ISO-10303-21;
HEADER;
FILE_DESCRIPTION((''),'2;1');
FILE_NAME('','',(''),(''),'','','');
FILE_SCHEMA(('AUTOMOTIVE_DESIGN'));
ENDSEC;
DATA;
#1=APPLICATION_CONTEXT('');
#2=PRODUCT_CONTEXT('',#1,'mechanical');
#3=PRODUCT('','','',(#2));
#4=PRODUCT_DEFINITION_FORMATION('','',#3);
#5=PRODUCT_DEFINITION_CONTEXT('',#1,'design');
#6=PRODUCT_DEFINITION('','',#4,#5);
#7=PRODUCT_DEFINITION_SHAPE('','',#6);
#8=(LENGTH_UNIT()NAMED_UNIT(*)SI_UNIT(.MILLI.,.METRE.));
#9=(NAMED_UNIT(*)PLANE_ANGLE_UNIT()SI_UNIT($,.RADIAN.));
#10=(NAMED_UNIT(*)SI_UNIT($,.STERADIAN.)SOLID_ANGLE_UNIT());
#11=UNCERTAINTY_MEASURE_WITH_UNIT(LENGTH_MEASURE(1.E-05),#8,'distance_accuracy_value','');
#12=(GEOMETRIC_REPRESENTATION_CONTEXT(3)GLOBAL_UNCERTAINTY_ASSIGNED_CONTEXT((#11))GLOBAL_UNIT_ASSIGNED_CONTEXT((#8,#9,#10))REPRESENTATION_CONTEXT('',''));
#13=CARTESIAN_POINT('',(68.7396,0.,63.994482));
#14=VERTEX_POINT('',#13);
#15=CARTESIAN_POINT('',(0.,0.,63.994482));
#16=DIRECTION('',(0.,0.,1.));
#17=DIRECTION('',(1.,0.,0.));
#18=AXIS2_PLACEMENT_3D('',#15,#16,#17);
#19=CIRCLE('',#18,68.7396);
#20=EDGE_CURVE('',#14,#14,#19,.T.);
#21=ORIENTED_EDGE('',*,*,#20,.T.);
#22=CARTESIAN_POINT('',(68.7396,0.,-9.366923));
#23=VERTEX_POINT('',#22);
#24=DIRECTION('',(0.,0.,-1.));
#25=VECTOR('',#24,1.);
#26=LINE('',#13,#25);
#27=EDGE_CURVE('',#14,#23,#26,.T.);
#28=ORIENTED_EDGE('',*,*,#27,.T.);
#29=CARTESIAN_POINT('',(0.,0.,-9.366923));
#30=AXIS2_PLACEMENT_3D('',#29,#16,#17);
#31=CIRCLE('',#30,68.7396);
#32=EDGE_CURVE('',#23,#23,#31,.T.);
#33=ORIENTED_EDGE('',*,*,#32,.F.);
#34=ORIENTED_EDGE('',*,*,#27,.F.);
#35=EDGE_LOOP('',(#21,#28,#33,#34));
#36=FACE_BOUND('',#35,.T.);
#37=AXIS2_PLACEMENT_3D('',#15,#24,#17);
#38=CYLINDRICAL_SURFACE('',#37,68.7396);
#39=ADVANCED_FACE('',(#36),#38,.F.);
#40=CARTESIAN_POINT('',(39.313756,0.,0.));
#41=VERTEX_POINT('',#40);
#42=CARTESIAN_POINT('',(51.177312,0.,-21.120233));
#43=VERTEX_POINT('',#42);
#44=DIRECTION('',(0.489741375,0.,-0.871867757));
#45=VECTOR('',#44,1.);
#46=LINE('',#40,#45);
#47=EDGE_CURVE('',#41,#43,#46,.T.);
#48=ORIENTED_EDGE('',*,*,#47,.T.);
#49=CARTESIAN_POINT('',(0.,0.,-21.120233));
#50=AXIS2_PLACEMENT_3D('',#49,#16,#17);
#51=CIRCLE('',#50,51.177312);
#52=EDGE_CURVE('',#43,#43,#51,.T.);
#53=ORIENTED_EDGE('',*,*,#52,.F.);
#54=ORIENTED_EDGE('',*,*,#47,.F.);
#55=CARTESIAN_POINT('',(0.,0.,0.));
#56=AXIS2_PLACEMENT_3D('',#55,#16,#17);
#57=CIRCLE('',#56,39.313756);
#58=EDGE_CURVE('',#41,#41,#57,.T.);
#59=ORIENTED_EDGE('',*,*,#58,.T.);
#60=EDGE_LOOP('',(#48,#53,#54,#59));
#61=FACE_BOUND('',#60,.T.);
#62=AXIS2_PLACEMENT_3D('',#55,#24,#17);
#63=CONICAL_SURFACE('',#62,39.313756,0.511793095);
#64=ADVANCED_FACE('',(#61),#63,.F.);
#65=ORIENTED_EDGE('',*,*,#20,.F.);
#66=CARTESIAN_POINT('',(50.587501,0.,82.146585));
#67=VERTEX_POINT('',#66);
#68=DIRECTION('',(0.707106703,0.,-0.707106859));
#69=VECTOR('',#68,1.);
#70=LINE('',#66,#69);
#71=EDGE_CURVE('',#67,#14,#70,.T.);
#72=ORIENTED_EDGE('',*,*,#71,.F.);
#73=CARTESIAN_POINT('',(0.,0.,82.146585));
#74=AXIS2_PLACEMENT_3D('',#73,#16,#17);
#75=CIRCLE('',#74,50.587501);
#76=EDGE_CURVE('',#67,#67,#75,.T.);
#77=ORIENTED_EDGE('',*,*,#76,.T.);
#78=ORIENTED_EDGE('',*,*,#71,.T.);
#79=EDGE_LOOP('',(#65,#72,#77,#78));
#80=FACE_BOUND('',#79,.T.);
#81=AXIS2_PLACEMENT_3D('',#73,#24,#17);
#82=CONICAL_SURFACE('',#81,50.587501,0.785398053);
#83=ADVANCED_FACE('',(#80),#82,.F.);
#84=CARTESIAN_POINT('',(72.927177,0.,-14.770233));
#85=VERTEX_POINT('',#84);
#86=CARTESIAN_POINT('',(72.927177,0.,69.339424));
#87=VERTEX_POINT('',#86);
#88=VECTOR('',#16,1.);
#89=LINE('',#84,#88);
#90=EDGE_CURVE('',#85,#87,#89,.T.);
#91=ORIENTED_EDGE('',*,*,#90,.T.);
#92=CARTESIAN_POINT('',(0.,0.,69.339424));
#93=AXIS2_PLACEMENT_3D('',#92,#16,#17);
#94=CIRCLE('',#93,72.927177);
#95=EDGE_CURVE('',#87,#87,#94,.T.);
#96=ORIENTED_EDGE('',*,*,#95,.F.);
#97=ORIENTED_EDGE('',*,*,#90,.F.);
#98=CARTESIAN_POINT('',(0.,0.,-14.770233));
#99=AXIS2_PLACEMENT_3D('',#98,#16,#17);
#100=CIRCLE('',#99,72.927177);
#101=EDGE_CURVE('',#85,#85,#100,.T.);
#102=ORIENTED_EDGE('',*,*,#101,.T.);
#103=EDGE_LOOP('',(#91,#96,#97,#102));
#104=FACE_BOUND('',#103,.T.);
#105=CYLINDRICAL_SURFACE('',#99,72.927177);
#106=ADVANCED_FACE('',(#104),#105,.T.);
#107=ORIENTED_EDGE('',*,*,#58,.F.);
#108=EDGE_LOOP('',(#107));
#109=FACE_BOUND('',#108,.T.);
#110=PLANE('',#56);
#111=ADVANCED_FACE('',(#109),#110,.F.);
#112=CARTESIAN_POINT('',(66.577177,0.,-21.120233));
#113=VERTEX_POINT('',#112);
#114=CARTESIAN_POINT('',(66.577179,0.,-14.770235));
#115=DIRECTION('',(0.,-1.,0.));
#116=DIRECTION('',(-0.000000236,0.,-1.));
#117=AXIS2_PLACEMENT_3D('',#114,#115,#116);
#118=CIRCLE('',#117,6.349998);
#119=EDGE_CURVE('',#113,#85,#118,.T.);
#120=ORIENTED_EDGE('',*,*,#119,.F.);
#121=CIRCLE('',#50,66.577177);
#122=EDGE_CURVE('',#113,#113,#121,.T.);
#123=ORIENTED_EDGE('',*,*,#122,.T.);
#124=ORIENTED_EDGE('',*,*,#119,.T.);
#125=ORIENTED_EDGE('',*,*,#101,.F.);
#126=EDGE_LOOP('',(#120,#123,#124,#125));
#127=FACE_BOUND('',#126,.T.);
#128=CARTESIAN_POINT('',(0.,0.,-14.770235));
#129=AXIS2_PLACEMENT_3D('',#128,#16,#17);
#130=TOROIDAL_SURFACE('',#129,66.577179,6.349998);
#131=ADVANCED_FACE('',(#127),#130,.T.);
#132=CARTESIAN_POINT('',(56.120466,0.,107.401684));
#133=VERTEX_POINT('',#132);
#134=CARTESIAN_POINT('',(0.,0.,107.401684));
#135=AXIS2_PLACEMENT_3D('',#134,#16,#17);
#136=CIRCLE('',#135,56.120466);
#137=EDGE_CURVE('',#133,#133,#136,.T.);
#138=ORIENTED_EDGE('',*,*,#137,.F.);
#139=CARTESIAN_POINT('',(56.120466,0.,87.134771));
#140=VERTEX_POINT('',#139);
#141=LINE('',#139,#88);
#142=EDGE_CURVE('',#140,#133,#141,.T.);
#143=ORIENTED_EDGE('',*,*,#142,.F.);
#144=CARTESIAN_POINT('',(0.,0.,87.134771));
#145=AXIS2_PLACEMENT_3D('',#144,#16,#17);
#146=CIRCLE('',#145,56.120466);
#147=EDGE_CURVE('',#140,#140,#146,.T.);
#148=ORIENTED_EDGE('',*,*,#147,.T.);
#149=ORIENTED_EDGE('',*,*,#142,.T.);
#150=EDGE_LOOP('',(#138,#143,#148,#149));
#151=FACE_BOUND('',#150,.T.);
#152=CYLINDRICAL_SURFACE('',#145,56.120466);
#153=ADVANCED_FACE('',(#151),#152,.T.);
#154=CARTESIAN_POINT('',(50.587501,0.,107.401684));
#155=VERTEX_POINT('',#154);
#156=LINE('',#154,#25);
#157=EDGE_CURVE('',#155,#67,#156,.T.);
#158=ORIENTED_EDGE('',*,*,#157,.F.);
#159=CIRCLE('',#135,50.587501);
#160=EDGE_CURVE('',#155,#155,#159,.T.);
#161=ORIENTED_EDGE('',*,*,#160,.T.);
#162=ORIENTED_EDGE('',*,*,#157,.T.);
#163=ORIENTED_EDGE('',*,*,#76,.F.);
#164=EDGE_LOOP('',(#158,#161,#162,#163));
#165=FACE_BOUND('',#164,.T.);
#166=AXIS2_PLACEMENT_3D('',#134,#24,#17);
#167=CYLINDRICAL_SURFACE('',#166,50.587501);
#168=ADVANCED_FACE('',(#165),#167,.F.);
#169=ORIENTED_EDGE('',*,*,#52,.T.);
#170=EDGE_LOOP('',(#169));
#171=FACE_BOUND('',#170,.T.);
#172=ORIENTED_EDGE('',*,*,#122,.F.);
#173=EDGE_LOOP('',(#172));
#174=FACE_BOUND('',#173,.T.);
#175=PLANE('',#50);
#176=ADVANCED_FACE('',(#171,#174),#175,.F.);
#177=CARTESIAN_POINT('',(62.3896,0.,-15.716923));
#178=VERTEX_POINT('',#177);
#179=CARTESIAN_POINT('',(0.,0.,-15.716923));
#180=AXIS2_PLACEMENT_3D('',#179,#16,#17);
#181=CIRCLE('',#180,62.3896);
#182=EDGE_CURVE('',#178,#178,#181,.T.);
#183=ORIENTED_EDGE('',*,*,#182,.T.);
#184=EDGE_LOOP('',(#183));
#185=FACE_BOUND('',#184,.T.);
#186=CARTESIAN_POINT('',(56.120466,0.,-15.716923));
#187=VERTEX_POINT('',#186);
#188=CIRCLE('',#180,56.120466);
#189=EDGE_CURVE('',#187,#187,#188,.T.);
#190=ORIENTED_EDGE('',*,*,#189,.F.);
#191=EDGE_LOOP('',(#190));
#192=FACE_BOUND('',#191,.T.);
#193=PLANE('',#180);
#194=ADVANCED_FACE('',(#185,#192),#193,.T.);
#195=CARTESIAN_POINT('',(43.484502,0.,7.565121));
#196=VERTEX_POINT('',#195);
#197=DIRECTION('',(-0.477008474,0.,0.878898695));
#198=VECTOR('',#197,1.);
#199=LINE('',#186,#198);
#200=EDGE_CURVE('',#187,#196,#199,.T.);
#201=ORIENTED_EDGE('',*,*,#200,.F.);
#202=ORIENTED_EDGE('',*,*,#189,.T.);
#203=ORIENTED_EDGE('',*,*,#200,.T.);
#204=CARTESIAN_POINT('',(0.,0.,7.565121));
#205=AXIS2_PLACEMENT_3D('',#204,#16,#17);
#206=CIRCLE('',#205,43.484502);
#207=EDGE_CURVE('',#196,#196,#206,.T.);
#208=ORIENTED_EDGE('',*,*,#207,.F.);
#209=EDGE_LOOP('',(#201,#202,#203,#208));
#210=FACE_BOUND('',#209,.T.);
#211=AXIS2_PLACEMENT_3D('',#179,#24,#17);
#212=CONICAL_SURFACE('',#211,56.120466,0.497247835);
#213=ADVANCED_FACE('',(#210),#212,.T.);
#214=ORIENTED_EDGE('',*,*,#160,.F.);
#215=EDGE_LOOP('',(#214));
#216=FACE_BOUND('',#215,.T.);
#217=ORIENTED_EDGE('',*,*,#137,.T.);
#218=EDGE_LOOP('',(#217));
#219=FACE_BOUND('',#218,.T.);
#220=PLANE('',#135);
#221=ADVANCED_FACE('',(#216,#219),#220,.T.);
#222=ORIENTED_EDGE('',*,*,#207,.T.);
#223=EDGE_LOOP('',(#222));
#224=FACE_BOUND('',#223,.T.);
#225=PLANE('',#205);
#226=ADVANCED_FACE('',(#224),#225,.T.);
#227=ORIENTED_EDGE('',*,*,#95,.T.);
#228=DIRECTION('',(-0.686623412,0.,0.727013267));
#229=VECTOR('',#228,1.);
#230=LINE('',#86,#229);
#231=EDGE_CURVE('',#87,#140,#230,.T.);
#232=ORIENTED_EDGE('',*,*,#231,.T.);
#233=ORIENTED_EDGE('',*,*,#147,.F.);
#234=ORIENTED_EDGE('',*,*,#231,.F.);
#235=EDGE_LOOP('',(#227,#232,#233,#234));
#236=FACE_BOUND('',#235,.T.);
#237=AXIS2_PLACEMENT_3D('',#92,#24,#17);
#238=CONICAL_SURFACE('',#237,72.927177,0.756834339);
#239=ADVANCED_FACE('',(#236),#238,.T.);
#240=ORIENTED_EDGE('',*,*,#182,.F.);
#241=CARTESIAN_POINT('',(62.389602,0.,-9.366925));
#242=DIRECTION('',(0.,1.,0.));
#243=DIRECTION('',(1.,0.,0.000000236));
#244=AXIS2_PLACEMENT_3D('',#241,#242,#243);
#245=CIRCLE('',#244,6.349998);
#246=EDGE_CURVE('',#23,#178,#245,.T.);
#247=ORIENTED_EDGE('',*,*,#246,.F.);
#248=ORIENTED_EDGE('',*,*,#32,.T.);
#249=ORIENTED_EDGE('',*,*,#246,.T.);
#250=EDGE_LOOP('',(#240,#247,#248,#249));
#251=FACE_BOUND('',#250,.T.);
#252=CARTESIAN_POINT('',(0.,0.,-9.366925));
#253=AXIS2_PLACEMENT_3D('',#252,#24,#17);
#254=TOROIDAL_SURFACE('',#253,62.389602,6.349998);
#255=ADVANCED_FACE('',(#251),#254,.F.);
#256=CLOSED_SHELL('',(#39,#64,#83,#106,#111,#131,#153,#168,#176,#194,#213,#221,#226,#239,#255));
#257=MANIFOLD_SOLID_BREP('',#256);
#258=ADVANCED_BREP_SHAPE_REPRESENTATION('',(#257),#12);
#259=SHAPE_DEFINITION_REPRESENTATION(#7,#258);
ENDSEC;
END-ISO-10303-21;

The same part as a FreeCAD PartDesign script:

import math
import FreeCAD as App
import Part
import Sketcher

V = App.Vector
Q = App.Units.Quantity

doc = App.newDocument("Part")
params = doc.addObject("Spreadsheet::Sheet", "Params")
for row, (alias, value) in enumerate([
    ("sketch1_radius", "0.2499999 in"),
    ("revolution_angle", "360 deg"),
], start=1):
    params.set(f"A{row}", alias)
    params.set(f"B{row}", "=" + value)
    params.setAlias(f"B{row}", alias)

body = doc.addObject("PartDesign::Body", "Body")

sketch1 = body.newObject("Sketcher::SketchObject", "Sketch")
sketch1.AttachmentSupport = (doc.getObject("XZ_Plane"), [""])
sketch1.MapMode = "FlatFace"
sketch1.addGeometry(Part.LineSegment(V(0, 8, 0), V(0, 0, 0)), False)
sketch1.addGeometry(Part.LineSegment(V(0, 0, 0), V(39, 0, 0)), False)
sketch1.addGeometry(Part.LineSegment(V(39, 0, 0), V(51, -21, 0)), False)
sketch1.addGeometry(Part.LineSegment(V(51, -21, 0), V(67, -21, 0)), False)
sketch1.addGeometry(Part.ArcOfCircle(Part.Circle(V(67, -15, 0), V(0, 0, 1), 6), math.radians(-90), math.radians(0)), False)
sketch1.addGeometry(Part.LineSegment(V(73, -15, 0), V(73, 69, 0)), False)
sketch1.addGeometry(Part.LineSegment(V(73, 69, 0), V(56, 87, 0)), False)
sketch1.addGeometry(Part.LineSegment(V(56, 87, 0), V(56, 107, 0)), False)
sketch1.addGeometry(Part.LineSegment(V(56, 107, 0), V(51, 107, 0)), False)
sketch1.addGeometry(Part.LineSegment(V(51, 107, 0), V(51, 82, 0)), False)
sketch1.addGeometry(Part.LineSegment(V(51, 82, 0), V(69, 64, 0)), False)
sketch1.addGeometry(Part.LineSegment(V(69, 64, 0), V(69, -9, 0)), False)
sketch1.addGeometry(Part.ArcOfCircle(Part.Circle(V(62, -9, 0), V(0, 0, 1), 6), math.radians(-90), math.radians(0)), False)
sketch1.addGeometry(Part.LineSegment(V(62, -16, 0), V(56, -16, 0)), False)
sketch1.addGeometry(Part.LineSegment(V(56, -16, 0), V(43, 8, 0)), False)
sketch1.addGeometry(Part.LineSegment(V(43, 8, 0), V(0, 8, 0)), False)
sketch1.addConstraint(Sketcher.Constraint("Coincident", 0, 2, 1, 1))
sketch1.addConstraint(Sketcher.Constraint("Coincident", 1, 2, 2, 1))
sketch1.addConstraint(Sketcher.Constraint("Coincident", 2, 2, 3, 1))
sketch1.addConstraint(Sketcher.Constraint("Tangent", 3, 2, 4, 1))
sketch1.addConstraint(Sketcher.Constraint("Tangent", 4, 2, 5, 1))
sketch1.addConstraint(Sketcher.Constraint("Coincident", 5, 2, 6, 1))
sketch1.addConstraint(Sketcher.Constraint("Coincident", 6, 2, 7, 1))
sketch1.addConstraint(Sketcher.Constraint("Coincident", 7, 2, 8, 1))
sketch1.addConstraint(Sketcher.Constraint("Coincident", 8, 2, 9, 1))
sketch1.addConstraint(Sketcher.Constraint("Coincident", 9, 2, 10, 1))
sketch1.addConstraint(Sketcher.Constraint("Coincident", 10, 2, 11, 1))
sketch1.addConstraint(Sketcher.Constraint("Tangent", 11, 2, 12, 2))
sketch1.addConstraint(Sketcher.Constraint("Tangent", 12, 1, 13, 1))
sketch1.addConstraint(Sketcher.Constraint("Coincident", 13, 2, 14, 1))
sketch1.addConstraint(Sketcher.Constraint("Coincident", 14, 2, 15, 1))
sketch1.addConstraint(Sketcher.Constraint("Coincident", 15, 2, 0, 1))
sketch1.addConstraint(Sketcher.Constraint("Vertical", 0))
sketch1.addConstraint(Sketcher.Constraint("Horizontal", 1))
sketch1.addConstraint(Sketcher.Constraint("Horizontal", 3))
sketch1.addConstraint(Sketcher.Constraint("Vertical", 5))
sketch1.addConstraint(Sketcher.Constraint("Vertical", 7))
sketch1.addConstraint(Sketcher.Constraint("Horizontal", 8))
sketch1.addConstraint(Sketcher.Constraint("Vertical", 9))
sketch1.addConstraint(Sketcher.Constraint("Vertical", 11))
sketch1.addConstraint(Sketcher.Constraint("Horizontal", 13))
sketch1.addConstraint(Sketcher.Constraint("Horizontal", 15))
sketch1.addConstraint(Sketcher.Constraint("Coincident", 0, 2, -1, 1))
sketch1.addConstraint(Sketcher.Constraint("Equal", 4, 12))
sketch1.addConstraint(Sketcher.Constraint("Vertical", 7, 2, 13, 2))
sketch1.addConstraint(Sketcher.Constraint("Radius", 4, Q("0.2499999 in")))
sketch1.addConstraint(Sketcher.Constraint("Angle", 10, Q("-45.000006 deg")))
sketch1.addConstraint(Sketcher.Constraint("DistanceY", 9, 2, 9, 1, Q("25.255099 mm")))
sketch1.addConstraint(Sketcher.Constraint("DistanceY", 0, 2, 0, 1, Q("7.565121 mm")))
sketch1.addConstraint(Sketcher.Constraint("DistanceX", -1, 1, 12, 3, Q("62.389601 mm")))
sketch1.addConstraint(Sketcher.Constraint("DistanceX", -1, 1, 8, 2, Q("50.587501 mm")))
sketch1.addConstraint(Sketcher.Constraint("DistanceX", 14, 2, 12, 3, Q("18.905099 mm")))
sketch1.addConstraint(Sketcher.Constraint("Distance", 14, Q("26.49002 mm")))
sketch1.addConstraint(Sketcher.Constraint("DistanceX", 1, 1, 1, 2, Q("39.313756 mm")))
sketch1.addConstraint(Sketcher.Constraint("DistanceX", 3, 1, 3, 2, Q("15.399865 mm")))
sketch1.addConstraint(Sketcher.Constraint("DistanceX", 8, 2, 8, 1, Q("5.532965 mm")))
sketch1.addConstraint(Sketcher.Constraint("DistanceY", 5, 1, 5, 2, Q("84.109657 mm")))
sketch1.addConstraint(Sketcher.Constraint("DistanceY", 7, 1, 7, 2, Q("20.266913 mm")))
sketch1.addConstraint(Sketcher.Constraint("DistanceY", 11, 2, 11, 1, Q("73.361405 mm")))
sketch1.addConstraint(Sketcher.Constraint("DistanceX", -1, 1, 4, 3, Q("66.577179 mm")))
sketch1.addConstraint(Sketcher.Constraint("DistanceY", 4, 3, 12, 3, Q("5.40331 mm")))
sketch1.setExpression("Constraints[29]", "Params.sketch1_radius")
revolution = body.newObject("PartDesign::Revolution", "Revolution")
revolution.Profile = sketch1
revolution.ReferenceAxis = (sketch1, ["V_Axis"])
revolution.setExpression("Angle", "Params.revolution_angle")

doc.recompute()
